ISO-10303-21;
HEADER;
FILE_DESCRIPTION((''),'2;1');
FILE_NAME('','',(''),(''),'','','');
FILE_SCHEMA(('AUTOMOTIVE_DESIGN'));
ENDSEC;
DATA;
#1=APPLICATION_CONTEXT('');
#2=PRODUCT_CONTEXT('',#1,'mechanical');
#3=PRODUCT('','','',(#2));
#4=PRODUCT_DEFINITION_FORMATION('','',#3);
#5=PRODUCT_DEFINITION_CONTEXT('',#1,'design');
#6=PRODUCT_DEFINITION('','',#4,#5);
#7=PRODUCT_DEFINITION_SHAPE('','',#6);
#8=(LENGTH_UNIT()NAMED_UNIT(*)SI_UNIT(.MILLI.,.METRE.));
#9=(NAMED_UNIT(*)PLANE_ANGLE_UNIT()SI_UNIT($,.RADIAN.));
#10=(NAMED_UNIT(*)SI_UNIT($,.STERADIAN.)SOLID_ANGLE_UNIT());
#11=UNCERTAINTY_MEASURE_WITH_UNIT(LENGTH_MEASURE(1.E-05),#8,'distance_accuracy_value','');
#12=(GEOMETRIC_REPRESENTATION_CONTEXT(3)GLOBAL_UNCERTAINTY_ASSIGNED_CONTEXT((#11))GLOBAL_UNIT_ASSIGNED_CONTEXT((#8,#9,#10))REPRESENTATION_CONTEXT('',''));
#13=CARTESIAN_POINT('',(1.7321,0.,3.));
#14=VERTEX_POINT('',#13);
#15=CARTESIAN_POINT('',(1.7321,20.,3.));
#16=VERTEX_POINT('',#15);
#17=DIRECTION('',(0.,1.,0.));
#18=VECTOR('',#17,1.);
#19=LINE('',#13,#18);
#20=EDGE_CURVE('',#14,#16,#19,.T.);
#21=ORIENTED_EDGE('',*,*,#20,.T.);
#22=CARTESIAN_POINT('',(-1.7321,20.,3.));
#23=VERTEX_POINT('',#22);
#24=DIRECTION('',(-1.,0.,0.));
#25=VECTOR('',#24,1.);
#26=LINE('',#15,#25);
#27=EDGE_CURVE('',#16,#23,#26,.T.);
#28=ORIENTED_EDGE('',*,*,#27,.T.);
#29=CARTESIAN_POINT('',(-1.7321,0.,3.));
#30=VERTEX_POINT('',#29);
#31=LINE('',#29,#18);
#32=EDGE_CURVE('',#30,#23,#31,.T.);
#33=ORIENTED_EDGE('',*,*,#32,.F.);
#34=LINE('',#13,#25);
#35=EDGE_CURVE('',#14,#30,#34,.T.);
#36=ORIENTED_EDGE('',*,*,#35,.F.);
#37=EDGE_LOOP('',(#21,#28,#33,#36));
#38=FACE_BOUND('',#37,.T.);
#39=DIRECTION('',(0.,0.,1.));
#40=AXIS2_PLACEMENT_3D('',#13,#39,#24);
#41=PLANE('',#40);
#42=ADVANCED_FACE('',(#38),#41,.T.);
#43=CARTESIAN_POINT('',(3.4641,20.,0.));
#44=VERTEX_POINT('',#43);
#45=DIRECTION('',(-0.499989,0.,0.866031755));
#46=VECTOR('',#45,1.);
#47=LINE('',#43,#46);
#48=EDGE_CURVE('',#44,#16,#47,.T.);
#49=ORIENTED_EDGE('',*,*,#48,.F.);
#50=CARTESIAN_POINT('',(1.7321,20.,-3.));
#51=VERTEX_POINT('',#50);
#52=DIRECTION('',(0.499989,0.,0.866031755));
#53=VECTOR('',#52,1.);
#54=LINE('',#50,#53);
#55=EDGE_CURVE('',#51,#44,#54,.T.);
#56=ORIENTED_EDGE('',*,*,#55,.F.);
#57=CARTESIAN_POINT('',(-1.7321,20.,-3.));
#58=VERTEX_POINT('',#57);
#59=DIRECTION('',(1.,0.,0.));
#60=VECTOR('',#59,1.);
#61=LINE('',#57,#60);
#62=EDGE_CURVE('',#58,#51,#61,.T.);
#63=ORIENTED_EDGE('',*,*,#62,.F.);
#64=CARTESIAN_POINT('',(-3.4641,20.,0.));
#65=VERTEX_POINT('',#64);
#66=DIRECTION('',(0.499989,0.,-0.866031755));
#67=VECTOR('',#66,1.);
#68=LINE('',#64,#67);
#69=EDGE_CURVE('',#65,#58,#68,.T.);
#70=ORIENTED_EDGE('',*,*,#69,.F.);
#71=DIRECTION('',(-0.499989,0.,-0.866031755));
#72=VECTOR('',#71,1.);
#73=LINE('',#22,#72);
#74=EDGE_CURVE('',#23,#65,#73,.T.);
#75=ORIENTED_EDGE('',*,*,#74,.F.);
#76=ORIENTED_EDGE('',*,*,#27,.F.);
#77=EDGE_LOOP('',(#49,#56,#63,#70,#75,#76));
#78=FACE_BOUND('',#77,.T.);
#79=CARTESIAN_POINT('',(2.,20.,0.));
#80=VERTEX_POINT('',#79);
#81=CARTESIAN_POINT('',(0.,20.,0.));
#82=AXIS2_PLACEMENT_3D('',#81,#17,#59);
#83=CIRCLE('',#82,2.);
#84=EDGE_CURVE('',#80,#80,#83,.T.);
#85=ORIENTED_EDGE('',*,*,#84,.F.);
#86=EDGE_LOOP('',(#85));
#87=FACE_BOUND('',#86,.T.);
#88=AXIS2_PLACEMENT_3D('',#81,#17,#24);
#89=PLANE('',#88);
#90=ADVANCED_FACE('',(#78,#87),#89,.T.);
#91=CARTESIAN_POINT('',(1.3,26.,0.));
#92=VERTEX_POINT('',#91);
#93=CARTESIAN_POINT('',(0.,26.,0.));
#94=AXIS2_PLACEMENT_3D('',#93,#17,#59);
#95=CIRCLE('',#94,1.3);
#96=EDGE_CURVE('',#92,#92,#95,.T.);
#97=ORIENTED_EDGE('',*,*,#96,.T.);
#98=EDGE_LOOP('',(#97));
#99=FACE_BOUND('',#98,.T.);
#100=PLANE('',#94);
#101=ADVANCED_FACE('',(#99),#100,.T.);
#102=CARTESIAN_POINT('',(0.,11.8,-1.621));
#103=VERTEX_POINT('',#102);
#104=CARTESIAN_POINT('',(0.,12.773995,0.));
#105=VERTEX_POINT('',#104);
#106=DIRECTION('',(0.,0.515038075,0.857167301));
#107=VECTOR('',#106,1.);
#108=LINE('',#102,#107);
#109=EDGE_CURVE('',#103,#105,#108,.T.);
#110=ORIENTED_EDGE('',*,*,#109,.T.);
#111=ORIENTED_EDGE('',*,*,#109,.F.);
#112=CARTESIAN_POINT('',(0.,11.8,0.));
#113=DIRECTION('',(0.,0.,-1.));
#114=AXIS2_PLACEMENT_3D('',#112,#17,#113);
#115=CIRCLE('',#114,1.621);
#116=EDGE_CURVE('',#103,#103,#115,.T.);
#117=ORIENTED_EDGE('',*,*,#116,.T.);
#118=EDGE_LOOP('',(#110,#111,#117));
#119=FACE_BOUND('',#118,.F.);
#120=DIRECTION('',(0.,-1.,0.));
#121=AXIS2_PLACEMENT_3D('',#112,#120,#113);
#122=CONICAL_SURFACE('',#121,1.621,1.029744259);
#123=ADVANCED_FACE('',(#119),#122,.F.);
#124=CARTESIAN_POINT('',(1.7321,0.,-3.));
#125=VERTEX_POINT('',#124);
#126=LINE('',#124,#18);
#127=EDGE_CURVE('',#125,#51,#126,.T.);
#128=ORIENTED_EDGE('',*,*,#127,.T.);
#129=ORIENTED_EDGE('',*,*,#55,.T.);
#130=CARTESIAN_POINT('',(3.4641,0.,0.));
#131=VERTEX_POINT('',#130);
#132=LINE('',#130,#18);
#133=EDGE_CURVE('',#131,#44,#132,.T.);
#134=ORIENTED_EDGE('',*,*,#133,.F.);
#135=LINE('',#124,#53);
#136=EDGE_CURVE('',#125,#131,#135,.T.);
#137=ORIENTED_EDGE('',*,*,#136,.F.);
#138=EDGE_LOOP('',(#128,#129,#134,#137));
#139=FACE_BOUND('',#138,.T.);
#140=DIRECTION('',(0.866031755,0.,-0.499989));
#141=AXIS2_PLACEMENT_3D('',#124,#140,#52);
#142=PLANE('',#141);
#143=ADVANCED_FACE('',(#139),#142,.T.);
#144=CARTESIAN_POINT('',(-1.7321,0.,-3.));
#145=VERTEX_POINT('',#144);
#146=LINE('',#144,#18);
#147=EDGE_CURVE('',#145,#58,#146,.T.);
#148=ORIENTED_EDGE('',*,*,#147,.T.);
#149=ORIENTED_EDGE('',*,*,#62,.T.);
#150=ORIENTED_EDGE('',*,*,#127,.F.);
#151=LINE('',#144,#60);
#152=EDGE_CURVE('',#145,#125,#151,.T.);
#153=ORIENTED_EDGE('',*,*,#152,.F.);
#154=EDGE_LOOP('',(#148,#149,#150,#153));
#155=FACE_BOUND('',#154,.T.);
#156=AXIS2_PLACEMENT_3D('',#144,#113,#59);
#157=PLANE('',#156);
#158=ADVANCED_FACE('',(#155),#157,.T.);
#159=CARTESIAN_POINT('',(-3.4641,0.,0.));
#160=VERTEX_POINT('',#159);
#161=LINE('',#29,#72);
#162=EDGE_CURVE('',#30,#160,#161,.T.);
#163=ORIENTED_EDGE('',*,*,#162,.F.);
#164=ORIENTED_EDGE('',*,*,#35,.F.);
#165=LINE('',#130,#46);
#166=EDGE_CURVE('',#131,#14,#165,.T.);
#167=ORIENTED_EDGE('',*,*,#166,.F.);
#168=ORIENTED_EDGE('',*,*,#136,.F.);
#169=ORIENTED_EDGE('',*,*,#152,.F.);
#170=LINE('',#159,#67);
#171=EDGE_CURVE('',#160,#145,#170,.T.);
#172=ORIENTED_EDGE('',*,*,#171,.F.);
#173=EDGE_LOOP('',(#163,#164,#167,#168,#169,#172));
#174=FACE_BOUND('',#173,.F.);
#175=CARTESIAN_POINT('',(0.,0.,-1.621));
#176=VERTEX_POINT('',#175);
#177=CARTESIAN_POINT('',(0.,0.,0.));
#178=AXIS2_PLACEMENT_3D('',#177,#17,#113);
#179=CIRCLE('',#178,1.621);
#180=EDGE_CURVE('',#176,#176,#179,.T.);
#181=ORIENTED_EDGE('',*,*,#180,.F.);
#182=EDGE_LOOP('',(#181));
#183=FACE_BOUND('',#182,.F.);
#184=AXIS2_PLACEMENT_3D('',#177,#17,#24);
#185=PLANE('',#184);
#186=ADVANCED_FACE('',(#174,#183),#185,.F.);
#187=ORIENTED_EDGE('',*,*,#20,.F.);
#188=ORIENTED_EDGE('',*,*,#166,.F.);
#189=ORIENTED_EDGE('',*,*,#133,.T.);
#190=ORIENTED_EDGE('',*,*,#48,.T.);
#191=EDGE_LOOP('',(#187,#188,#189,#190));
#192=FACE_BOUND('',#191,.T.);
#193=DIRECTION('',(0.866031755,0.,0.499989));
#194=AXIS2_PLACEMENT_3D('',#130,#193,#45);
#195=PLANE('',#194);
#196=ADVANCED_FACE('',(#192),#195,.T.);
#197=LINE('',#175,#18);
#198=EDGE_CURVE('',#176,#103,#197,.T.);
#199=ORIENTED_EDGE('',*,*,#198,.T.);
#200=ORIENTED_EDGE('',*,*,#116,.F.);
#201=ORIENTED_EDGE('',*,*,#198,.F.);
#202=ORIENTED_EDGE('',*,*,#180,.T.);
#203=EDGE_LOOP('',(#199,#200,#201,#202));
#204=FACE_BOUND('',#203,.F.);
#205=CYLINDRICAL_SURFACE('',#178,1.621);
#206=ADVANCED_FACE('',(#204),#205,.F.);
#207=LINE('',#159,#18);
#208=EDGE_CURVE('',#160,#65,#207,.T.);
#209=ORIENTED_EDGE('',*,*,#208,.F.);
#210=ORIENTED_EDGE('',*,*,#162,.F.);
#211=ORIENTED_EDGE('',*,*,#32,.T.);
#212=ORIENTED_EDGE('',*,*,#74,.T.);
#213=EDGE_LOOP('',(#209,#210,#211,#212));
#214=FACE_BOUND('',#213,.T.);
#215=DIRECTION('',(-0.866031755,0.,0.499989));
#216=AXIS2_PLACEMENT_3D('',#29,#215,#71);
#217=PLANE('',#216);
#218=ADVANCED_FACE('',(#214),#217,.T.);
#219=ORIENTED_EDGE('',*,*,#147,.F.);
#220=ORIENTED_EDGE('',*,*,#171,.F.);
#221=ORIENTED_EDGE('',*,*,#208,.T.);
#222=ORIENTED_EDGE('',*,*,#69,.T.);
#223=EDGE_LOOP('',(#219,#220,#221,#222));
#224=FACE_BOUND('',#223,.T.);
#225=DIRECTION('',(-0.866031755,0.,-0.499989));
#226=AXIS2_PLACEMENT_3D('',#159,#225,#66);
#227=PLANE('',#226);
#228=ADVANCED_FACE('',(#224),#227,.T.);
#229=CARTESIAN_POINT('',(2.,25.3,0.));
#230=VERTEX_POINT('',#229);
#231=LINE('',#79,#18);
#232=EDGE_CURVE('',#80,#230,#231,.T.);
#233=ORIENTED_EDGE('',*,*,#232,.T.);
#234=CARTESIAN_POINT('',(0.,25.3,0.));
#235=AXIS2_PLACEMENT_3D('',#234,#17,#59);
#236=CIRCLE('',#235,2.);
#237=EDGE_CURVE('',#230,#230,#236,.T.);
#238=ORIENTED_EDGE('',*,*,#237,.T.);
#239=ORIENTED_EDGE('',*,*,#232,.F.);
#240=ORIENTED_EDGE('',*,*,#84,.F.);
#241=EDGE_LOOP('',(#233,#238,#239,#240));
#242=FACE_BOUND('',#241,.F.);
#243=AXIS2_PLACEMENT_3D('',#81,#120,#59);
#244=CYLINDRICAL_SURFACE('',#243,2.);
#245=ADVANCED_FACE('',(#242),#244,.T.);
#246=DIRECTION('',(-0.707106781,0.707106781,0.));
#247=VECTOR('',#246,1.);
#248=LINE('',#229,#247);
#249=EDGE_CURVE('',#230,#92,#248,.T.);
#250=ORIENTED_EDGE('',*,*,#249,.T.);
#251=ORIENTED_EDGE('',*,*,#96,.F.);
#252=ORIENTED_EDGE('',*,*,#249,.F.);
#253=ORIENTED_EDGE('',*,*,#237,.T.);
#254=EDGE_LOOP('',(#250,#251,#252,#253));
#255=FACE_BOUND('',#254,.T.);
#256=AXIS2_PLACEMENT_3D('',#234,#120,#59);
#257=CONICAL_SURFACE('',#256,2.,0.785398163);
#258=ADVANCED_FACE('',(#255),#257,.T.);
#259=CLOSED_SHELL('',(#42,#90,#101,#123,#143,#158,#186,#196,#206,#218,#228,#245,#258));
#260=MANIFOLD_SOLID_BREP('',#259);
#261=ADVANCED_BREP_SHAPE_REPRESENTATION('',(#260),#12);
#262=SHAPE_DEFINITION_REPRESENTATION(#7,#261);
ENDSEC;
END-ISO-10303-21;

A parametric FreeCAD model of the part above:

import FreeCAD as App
import Part
import Sketcher
from FreeCAD import Vector
Q = App.Units.Quantity


def edges_at(feature, points):
    """Names of the edges that pass closest to the given points."""
    edges = feature.Shape.Edges
    near = lambda p: min(range(len(edges)), key=lambda i: edges[i].distToShape(Part.Vertex(*p))[0])
    return sorted({f"Edge{near(p) + 1}" for p in points})


def add_polygon(sketch, points):
    """Adds a closed chain of lines whose ends are joined by coincident constraints."""
    first, n = sketch.GeometryCount, len(points)
    for a, b in zip(points, points[1:] + points[:1]):
        sketch.addGeometry(Part.LineSegment(App.Vector(*a, 0), App.Vector(*b, 0)), False)
    for i in range(n):
        sketch.addConstraint(Sketcher.Constraint("Coincident", first + i, 2, first + (i + 1) % n, 1))

doc = App.newDocument("Part")
params = doc.addObject("Spreadsheet::Sheet", "Params")
for row, (alias, value) in enumerate([
    ("pad1_length", "20 mm"),
    ("hole_diameter", "3.242 mm"),
    ("hole_depth", "11.8 mm"),
    ("sketch3_diameter", "4 mm"),
    ("pad2_length", "6 mm"),
    ("chamfer_size", "0.7 mm"),
], start=1):
    params.set(f"A{row}", alias)
    params.set(f"B{row}", "=" + value)
    params.setAlias(f"B{row}", alias)

body = doc.addObject("PartDesign::Body", "Body")

# Sketch on XZ plane
sketch1 = body.newObject("Sketcher::SketchObject", "Sketch")
sketch1.AttachmentSupport = (doc.getObject("XZ_Plane"), [""])
sketch1.MapMode = "FlatFace"
add_polygon(sketch1, [(3.5, 0), (1.7, -3), (-1.7, -3), (-3.5, 0), (-1.7, 3), (1.7, 3)])  # lines 0-5
sketch1.addConstraint([
    Sketcher.Constraint("Horizontal", 1),
    Sketcher.Constraint("Horizontal", 4),
    Sketcher.Constraint("Symmetric", 0, 2, 3, 2, -1, 1),
    Sketcher.Constraint("Symmetric", 2, 2, 5, 2, -1, 1),
    Sketcher.Constraint("PointOnObject", 2, 2, -1),
    Sketcher.Constraint("Parallel", 2, 5),
    Sketcher.Constraint("Vertical", 1, 2, 3, 2),
    Sketcher.Constraint("DistanceY", 0, 2, -1, 1, 3.0),
    Sketcher.Constraint("Angle", 0, Q("-119.9993 deg")),
    Sketcher.Constraint("DistanceX", 1, 2, 1, 1, 3.4642),
])
pad1 = body.newObject("PartDesign::Pad", "Pad")
pad1.Profile = sketch1
pad1.setExpression("Length", "Params.pad1_length")
pad1.Reversed = True

# Sketch on XZ plane
sketch2 = body.newObject("Sketcher::SketchObject", "Sketch001")
sketch2.AttachmentSupport = (doc.getObject("XZ_Plane"), [""])
sketch2.MapMode = "FlatFace"
sketch2.addGeometry(Part.Circle(Vector(0, 0, 0), Vector(0, 0, 1), 1.6), False)
sketch2.addConstraint([
    Sketcher.Constraint("Coincident", 0, 3, -1, 1),
    Sketcher.Constraint("Diameter", 0, 3.242),
])
doc.recompute()
hole = body.newObject("PartDesign::Hole", "Hole")
hole.Profile = sketch2
hole.ThreadType = "None"
hole.setExpression("Diameter", "Params.hole_diameter")
hole.DepthType = "Dimension"
hole.setExpression("Depth", "Params.hole_depth")
hole.DrillPoint = "Angled"
hole.DrillPointAngle = 118

# Sketch on XZ plane
sketch3 = body.newObject("Sketcher::SketchObject", "Sketch002")
sketch3.AttachmentSupport = (doc.getObject("XZ_Plane"), [""])
sketch3.MapMode = "FlatFace"
sketch3.AttachmentOffset = App.Placement(Vector(0, 0, -20), App.Rotation())
sketch3.addGeometry(Part.Circle(Vector(0, 0, 0), Vector(0, 0, 1), 2), False)
sketch3.addConstraint([
    Sketcher.Constraint("Coincident", 0, 3, -1, 1),
    Sketcher.Constraint("Diameter", 0, 4.0),
])
sketch3.setExpression("Constraints[1]", "Params.sketch3_diameter")
pad2 = body.newObject("PartDesign::Pad", "Pad001")
pad2.Profile = sketch3
pad2.setExpression("Length", "Params.pad2_length")
pad2.Reversed = True
doc.recompute()

chamfer = body.newObject("PartDesign::Chamfer", "Chamfer")
chamfer.Base = (pad2, edges_at(pad2, [(-2, 26, 0)]))
chamfer.setExpression("Size", "Params.chamfer_size")

doc.recompute()
